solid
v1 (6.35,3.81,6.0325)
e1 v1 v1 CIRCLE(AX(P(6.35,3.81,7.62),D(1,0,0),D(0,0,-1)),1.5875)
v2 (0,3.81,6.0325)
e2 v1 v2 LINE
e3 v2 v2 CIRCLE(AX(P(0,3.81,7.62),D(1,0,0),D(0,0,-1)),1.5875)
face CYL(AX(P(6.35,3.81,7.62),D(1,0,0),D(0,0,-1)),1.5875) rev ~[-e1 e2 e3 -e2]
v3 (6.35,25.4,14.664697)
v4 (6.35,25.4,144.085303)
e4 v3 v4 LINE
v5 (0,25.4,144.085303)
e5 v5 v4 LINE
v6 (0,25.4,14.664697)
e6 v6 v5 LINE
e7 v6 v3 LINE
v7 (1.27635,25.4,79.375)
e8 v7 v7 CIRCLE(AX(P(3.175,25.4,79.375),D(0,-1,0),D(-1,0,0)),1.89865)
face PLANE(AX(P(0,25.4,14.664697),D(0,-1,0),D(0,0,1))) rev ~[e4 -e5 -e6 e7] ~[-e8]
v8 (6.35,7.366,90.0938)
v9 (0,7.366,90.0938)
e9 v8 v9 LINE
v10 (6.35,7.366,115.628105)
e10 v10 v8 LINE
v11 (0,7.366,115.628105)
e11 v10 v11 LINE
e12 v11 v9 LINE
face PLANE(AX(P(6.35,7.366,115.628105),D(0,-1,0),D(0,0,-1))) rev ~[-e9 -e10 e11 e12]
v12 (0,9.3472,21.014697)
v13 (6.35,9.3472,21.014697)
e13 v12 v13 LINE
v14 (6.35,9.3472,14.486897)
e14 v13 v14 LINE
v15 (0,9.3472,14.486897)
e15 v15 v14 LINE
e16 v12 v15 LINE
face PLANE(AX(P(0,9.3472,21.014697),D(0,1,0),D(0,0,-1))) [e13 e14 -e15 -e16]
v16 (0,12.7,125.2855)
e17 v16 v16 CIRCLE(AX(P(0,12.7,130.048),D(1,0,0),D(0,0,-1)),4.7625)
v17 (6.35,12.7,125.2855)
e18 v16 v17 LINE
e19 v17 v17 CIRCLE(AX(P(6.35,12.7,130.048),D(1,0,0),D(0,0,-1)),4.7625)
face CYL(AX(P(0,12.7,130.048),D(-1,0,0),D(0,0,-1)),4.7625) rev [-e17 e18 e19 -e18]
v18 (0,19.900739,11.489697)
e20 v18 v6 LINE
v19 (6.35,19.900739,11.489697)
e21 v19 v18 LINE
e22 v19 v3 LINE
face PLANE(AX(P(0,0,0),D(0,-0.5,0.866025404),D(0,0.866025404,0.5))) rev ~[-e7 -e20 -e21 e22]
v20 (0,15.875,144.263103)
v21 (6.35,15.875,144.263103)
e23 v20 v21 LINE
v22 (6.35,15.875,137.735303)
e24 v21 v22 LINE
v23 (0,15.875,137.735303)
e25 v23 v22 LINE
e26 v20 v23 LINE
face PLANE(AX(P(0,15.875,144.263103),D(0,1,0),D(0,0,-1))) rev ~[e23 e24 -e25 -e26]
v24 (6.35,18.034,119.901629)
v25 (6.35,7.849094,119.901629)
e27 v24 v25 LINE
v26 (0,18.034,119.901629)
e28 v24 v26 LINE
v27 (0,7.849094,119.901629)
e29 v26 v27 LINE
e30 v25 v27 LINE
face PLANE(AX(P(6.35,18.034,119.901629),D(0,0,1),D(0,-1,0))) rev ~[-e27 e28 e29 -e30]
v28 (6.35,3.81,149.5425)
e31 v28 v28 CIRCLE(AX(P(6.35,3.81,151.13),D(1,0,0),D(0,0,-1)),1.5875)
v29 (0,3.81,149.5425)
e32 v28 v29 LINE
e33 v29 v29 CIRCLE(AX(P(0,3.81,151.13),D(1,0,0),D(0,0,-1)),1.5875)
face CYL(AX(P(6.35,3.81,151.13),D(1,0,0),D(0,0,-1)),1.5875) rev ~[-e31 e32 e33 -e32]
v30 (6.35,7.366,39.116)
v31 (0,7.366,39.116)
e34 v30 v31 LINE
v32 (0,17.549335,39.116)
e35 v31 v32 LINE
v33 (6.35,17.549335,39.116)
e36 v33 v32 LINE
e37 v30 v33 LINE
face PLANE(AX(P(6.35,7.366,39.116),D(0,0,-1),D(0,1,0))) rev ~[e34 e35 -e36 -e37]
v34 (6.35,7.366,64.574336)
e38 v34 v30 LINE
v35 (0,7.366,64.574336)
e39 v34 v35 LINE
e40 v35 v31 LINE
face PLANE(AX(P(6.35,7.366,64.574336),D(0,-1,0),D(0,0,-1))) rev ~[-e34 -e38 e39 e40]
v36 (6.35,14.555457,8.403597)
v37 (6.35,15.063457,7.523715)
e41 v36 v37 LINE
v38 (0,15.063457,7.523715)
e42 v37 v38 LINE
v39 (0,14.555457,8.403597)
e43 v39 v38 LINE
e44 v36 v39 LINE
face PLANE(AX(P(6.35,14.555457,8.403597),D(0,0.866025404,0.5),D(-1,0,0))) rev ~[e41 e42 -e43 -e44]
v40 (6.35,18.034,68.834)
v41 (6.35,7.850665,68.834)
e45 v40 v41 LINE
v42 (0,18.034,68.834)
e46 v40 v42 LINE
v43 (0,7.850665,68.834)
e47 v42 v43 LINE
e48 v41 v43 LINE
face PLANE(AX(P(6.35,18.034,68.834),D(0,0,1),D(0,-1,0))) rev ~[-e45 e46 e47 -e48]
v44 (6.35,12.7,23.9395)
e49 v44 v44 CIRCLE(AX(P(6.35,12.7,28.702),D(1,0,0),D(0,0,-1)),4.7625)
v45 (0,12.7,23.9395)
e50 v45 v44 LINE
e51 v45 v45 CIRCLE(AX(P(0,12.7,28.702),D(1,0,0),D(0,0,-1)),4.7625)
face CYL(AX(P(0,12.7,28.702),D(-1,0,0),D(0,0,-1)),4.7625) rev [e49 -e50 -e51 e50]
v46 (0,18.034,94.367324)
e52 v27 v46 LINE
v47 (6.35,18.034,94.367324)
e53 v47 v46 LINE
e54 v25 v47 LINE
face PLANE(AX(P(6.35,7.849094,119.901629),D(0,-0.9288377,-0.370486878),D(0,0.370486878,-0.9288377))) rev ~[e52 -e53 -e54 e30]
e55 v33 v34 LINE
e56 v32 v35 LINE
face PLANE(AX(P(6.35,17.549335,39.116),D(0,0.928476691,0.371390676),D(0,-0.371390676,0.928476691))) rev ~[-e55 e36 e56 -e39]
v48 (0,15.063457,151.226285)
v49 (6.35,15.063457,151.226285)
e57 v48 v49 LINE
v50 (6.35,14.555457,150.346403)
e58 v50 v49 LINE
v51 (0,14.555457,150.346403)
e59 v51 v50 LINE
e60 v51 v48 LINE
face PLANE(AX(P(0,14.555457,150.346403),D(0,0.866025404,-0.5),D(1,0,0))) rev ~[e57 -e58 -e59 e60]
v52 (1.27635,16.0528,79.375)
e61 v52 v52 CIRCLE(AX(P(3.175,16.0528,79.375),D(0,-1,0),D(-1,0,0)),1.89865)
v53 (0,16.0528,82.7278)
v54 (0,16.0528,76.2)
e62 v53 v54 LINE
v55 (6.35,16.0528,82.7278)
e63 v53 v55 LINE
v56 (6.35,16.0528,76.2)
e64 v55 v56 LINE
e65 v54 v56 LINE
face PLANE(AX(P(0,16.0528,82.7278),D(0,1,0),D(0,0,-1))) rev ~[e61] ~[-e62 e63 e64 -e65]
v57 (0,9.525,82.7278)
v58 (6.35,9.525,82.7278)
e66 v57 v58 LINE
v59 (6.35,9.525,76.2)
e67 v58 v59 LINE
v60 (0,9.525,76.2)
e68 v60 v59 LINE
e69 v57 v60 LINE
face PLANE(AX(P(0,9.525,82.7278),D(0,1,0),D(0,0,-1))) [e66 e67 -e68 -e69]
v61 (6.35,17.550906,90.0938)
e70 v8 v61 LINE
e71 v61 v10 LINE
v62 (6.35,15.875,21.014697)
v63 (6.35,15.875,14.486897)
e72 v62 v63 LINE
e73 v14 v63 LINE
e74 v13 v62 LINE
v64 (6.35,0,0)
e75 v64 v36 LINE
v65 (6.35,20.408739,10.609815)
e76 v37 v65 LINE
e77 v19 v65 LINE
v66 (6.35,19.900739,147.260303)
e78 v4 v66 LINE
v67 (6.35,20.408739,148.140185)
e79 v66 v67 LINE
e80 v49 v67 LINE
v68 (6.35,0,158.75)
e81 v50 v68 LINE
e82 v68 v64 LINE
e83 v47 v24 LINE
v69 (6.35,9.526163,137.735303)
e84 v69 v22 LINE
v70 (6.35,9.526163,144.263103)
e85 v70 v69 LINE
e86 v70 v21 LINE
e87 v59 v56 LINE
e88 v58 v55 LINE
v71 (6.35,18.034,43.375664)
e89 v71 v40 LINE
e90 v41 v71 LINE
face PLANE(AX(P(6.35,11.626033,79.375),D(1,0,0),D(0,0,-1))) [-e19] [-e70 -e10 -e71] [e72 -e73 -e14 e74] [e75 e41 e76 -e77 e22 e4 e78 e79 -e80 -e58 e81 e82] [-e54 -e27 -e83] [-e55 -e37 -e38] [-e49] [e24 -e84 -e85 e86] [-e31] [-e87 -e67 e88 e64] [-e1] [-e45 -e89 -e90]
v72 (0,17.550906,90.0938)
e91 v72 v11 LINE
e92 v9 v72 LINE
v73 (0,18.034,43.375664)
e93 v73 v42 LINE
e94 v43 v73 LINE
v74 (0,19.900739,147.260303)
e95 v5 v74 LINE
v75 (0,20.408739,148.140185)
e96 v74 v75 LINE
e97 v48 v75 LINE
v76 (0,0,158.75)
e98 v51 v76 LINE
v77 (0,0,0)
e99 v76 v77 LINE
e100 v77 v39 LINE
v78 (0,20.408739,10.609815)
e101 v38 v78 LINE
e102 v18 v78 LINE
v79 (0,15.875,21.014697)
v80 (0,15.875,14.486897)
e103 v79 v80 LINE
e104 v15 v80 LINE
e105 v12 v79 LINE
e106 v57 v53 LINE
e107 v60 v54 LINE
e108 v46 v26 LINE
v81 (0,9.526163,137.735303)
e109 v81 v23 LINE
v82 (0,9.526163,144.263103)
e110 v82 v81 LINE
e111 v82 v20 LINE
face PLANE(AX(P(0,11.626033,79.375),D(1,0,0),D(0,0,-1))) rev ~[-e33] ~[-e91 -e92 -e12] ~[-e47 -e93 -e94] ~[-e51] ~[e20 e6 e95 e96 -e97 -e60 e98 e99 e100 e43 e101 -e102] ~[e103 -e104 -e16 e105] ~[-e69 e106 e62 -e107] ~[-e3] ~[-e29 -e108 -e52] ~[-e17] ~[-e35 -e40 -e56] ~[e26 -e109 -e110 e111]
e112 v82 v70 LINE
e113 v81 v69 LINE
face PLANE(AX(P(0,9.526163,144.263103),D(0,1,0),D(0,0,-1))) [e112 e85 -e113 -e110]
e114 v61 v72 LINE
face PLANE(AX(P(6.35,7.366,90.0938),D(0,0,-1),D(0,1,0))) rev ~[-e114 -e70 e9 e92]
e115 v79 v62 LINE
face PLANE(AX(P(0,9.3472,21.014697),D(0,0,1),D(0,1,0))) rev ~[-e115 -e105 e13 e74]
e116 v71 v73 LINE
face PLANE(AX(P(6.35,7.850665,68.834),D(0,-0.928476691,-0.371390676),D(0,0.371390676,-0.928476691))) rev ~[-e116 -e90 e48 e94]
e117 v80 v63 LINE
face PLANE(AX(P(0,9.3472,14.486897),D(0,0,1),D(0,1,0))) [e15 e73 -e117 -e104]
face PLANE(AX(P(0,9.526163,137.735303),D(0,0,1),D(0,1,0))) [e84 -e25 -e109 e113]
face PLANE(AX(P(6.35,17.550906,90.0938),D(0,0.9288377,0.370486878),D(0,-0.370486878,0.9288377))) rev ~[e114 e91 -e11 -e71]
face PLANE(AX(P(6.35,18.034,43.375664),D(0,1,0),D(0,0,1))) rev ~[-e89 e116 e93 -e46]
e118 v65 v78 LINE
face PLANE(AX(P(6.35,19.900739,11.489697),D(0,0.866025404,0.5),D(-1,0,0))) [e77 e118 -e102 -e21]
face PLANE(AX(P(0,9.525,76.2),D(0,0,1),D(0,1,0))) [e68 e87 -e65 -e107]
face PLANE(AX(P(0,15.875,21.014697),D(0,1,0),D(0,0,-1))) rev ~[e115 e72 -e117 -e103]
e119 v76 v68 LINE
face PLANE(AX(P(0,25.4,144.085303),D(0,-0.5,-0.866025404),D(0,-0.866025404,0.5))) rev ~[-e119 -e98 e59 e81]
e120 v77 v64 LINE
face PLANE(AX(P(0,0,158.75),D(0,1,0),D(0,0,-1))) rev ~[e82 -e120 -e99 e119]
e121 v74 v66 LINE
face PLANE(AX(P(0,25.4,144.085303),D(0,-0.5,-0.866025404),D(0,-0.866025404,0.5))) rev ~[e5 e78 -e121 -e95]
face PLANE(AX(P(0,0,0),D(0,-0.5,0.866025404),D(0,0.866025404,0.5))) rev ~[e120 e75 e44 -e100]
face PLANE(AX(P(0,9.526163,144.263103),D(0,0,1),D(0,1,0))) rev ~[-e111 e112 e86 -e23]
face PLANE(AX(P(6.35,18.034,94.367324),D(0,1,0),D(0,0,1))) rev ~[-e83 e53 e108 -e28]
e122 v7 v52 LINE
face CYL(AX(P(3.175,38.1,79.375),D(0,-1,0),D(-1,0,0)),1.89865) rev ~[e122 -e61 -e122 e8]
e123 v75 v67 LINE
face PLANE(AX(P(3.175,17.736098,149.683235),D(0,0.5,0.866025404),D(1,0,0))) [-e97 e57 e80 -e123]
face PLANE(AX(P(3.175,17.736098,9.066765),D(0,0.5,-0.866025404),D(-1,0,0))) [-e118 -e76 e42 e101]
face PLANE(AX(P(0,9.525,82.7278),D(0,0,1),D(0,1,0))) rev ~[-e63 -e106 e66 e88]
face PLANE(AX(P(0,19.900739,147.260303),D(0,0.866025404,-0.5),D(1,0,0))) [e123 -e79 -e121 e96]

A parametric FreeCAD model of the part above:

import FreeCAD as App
import Part
import Sketcher
Q = App.Units.Quantity

doc = App.newDocument("Part")
params = doc.addObject("Spreadsheet::Sheet", "Params")
for row, (alias, value) in enumerate([
    ("sketch1_diameter", "0.375 in"),
    ("sketch1_height", "6.25 in"),
    ("sketch1_width", "0.257 in"),
    ("pad1_length", "0.25 in"),
    ("hole_diameter", "0.1495 in"),
    ("hole_depth", "0.5 in"),
    ("sketch3_width", "0.25 in"),
    ("sketch3_height", "0.243 in"),
    ("pad2_length", "0.04 in"),
    ("sketch4_width", "0.25 in"),
    ("sketch4_height", "0.243 in"),
    ("pad3_length", "0.04 in"),
    ("sketch5_diameter", "0.125 in"),
], start=1):
    params.set(f"A{row}", alias)
    params.set(f"B{row}", "=" + value)
    params.setAlias(f"B{row}", alias)

body = doc.addObject("PartDesign::Body", "Body")

sketch1 = body.newObject("Sketcher::SketchObject", "Sketch")
sketch1.AttachmentSupport = (doc.getObject("YZ_Plane"), [""])
sketch1.MapMode = "FlatFace"
sketch1.addGeometry([
    Part.LineSegment(App.Vector(0, 0, 0), App.Vector(25.4, 14.7, 0)),
    Part.LineSegment(App.Vector(25.4, 14.7, 0), App.Vector(25.4, 144.1, 0)),
    Part.LineSegment(App.Vector(25.4, 144.1, 0), App.Vector(0, 158.8, 0)),
    Part.LineSegment(App.Vector(0, 158.8, 0), App.Vector(0, 0, 0)),
    Part.LineSegment(App.Vector(9.3, 14.5, 0), App.Vector(9.3, 21, 0)),
    Part.LineSegment(App.Vector(9.3, 21, 0), App.Vector(15.9, 21, 0)),
    Part.LineSegment(App.Vector(15.9, 21, 0), App.Vector(15.9, 14.5, 0)),
    Part.LineSegment(App.Vector(15.9, 14.5, 0), App.Vector(9.3, 14.5, 0)),
    Part.LineSegment(App.Vector(9.5, 137.7, 0), App.Vector(9.5, 144.3, 0)),
    Part.LineSegment(App.Vector(9.5, 144.3, 0), App.Vector(15.9, 144.3, 0)),
    Part.LineSegment(App.Vector(15.9, 144.3, 0), App.Vector(15.9, 137.7, 0)),
    Part.LineSegment(App.Vector(15.9, 137.7, 0), App.Vector(9.5, 137.7, 0)),
    Part.Circle(App.Vector(12.7, 130, 0), App.Vector(0, 0, 1), 4.8),
    Part.LineSegment(App.Vector(9.5, 76.2, 0), App.Vector(9.5, 82.7, 0)),
    Part.LineSegment(App.Vector(9.5, 82.7, 0), App.Vector(16.1, 82.7, 0)),
    Part.LineSegment(App.Vector(16.1, 82.7, 0), App.Vector(16.1, 76.2, 0)),
    Part.LineSegment(App.Vector(16.1, 76.2, 0), App.Vector(9.5, 76.2, 0)),
    Part.Circle(App.Vector(12.7, 28.7, 0), App.Vector(0, 0, 1), 4.8),
], False)
sketch1.addConstraint([
    Sketcher.Constraint("Coincident", 0, 2, 1, 1),
    Sketcher.Constraint("Coincident", 1, 2, 2, 1),
    Sketcher.Constraint("Coincident", 2, 2, 3, 1),
    Sketcher.Constraint("Coincident", 3, 2, 0, 1),
    Sketcher.Constraint("Coincident", 4, 2, 5, 1),
    Sketcher.Constraint("Coincident", 5, 2, 6, 1),
    Sketcher.Constraint("Coincident", 6, 2, 7, 1),
    Sketcher.Constraint("Coincident", 7, 2, 4, 1),
    Sketcher.Constraint("Coincident", 8, 2, 9, 1),
    Sketcher.Constraint("Coincident", 9, 2, 10, 1),
    Sketcher.Constraint("Coincident", 10, 2, 11, 1),
    Sketcher.Constraint("Coincident", 11, 2, 8, 1),
    Sketcher.Constraint("Coincident", 13, 2, 14, 1),
    Sketcher.Constraint("Coincident", 14, 2, 15, 1),
    Sketcher.Constraint("Coincident", 15, 2, 16, 1),
    Sketcher.Constraint("Coincident", 16, 2, 13, 1),
    Sketcher.Constraint("Vertical", 1),
    Sketcher.Constraint("Vertical", 3),
    Sketcher.Constraint("Vertical", 4),
    Sketcher.Constraint("Horizontal", 5),
    Sketcher.Constraint("Vertical", 6),
    Sketcher.Constraint("Horizontal", 7),
    Sketcher.Constraint("Vertical", 8),
    Sketcher.Constraint("Horizontal", 9),
    Sketcher.Constraint("Vertical", 10),
    Sketcher.Constraint("Horizontal", 11),
    Sketcher.Constraint("Vertical", 13),
    Sketcher.Constraint("Horizontal", 14),
    Sketcher.Constraint("Vertical", 15),
    Sketcher.Constraint("Horizontal", 16),
    Sketcher.Constraint("Coincident", 3, 2, -1, 1),
    Sketcher.Constraint("Equal", 12, 17),
    Sketcher.Constraint("Vertical", 12, 3, 17, 3),
    Sketcher.Constraint("Vertical", 6, 2, 9, 2),
    Sketcher.Constraint("Equal", 7, 14),
    Sketcher.Constraint("Equal", 16, 4),
    Sketcher.Constraint("Equal", 6, 8),
    Sketcher.Constraint("Equal", 10, 13),
    Sketcher.Constraint("Equal", 0, 2),
    Sketcher.Constraint("Diameter", 12, Q("0.375 in")),
    Sketcher.Constraint("DistanceX", -1, 1, 0, 2, Q("1 in")),
    Sketcher.Constraint("DistanceY", -1, 1, 15, 2, Q("3 in")),
    Sketcher.Constraint("Angle", 0, Q("30 deg")),
    Sketcher.Constraint("DistanceY", 3, 2, 3, 1, Q("6.25 in")),
    Sketcher.Constraint("DistanceX", -1, 1, 12, 3, Q("0.5 in")),
    Sketcher.Constraint("DistanceX", 5, 1, 5, 2, Q("0.257 in")),
    Sketcher.Constraint("DistanceY", -1, 1, 12, 3, Q("5.12 in")),
    Sketcher.Constraint("DistanceY", -1, 1, 17, 3, Q("1.13 in")),
    Sketcher.Constraint("DistanceY", 0, 2, 4, 2, Q("0.25 in")),
    Sketcher.Constraint("DistanceY", 10, 2, 1, 2, Q("0.25 in")),
    Sketcher.Constraint("DistanceX", 13, 2, 10, 2, Q("0.25 in")),
    Sketcher.Constraint("DistanceX", -1, 1, 4, 2, Q("0.368 in")),
    Sketcher.Constraint("DistanceX", 9, 1, 9, 2, Q("6.348837 mm")),
])
sketch1.setExpression("Constraints[39]", "Params.sketch1_diameter")
sketch1.setExpression("Constraints[43]", "Params.sketch1_height")
sketch1.setExpression("Constraints[45]", "Params.sketch1_width")
pad1 = body.newObject("PartDesign::Pad", "Pad")
pad1.Profile = sketch1
pad1.setExpression("Length", "Params.pad1_length")

sketch2 = body.newObject("Sketcher::SketchObject", "Sketch001")
sketch2.AttachmentSupport = (doc.getObject("XZ_Plane"), [""])
sketch2.MapMode = "FlatFace"
sketch2.AttachmentOffset = App.Placement(App.Vector(0, 0, -1 * 25.4), App.Rotation())
sketch2.addGeometry(Part.Circle(App.Vector(3.2, 79.4, 0), App.Vector(0, 0, 1), 1.9), False)
sketch2.addConstraint([
    Sketcher.Constraint("Diameter", 0, Q("0.1495 in")),
    Sketcher.Constraint("DistanceX", -1, 1, 0, 3, Q("0.125 in")),
    Sketcher.Constraint("DistanceY", -1, 1, 0, 3, Q("3.125 in")),
])
doc.recompute()
hole = body.newObject("PartDesign::Hole", "Hole")
hole.Profile = sketch2
hole.ThreadType = "None"
hole.setExpression("Diameter", "Params.hole_diameter")
hole.DepthType = "Dimension"
hole.setExpression("Depth", "Params.hole_depth")
hole.DrillPoint = "Angled"
hole.DrillPointAngle = 118
hole.Reversed = True

sketch3 = body.newObject("Sketcher::SketchObject", "Sketch002")
sketch3.Placement = App.Placement(App.Vector(0, 0, 0), App.Rotation(App.Vector(-1, 0, 0), App.Vector(0, 0.866025404, 0.5), App.Vector(0, 0.5, -0.866025404), "ZXY"))
sketch3.addGeometry([
    Part.LineSegment(App.Vector(-6, 23, 0), App.Vector(-6, 17, 0)),
    Part.LineSegment(App.Vector(-6, 17, 0), App.Vector(0, 17, 0)),
    Part.LineSegment(App.Vector(0, 17, 0), App.Vector(0, 23, 0)),
    Part.LineSegment(App.Vector(0, 23, 0), App.Vector(-6, 23, 0)),
], False)
sketch3.addConstraint([
    Sketcher.Constraint("Coincident", 0, 2, 1, 1),
    Sketcher.Constraint("Coincident", 1, 2, 2, 1),
    Sketcher.Constraint("Coincident", 2, 2, 3, 1),
    Sketcher.Constraint("Coincident", 3, 2, 0, 1),
    Sketcher.Constraint("Vertical", 0),
    Sketcher.Constraint("Horizontal", 1),
    Sketcher.Constraint("Vertical", 2),
    Sketcher.Constraint("Horizontal", 3),
    Sketcher.Constraint("PointOnObject", 1, 2, -2),
    Sketcher.Constraint("DistanceX", 1, 1, 1, 2, Q("0.25 in")),
    Sketcher.Constraint("DistanceY", 0, 2, 0, 1, Q("0.243 in")),
    Sketcher.Constraint("DistanceY", -1, 1, 0, 2, Q("16.807194 mm")),
])
sketch3.setExpression("Constraints[9]", "Params.sketch3_width")
sketch3.setExpression("Constraints[10]", "Params.sketch3_height")
pad2 = body.newObject("PartDesign::Pad", "Pad001")
pad2.Profile = sketch3
pad2.setExpression("Length", "Params.pad2_length")

sketch4 = body.newObject("Sketcher::SketchObject", "Sketch003")
sketch4.Placement = App.Placement(App.Vector(0, 68.740766, 119.0625), App.Rotation(App.Vector(1, 0, 0), App.Vector(0, 0.866025404, -0.5), App.Vector(0, 0.5, 0.866025404), "ZXY"))
sketch4.addGeometry([
    Part.LineSegment(App.Vector(0, -56, 0), App.Vector(0, -63, 0)),
    Part.LineSegment(App.Vector(0, -63, 0), App.Vector(6, -63, 0)),
    Part.LineSegment(App.Vector(6, -63, 0), App.Vector(6, -56, 0)),
    Part.LineSegment(App.Vector(6, -56, 0), App.Vector(0, -56, 0)),
], False)
sketch4.addConstraint([
    Sketcher.Constraint("Coincident", 0, 2, 1, 1),
    Sketcher.Constraint("Coincident", 1, 2, 2, 1),
    Sketcher.Constraint("Coincident", 2, 2, 3, 1),
    Sketcher.Constraint("Coincident", 3, 2, 0, 1),
    Sketcher.Constraint("Vertical", 0),
    Sketcher.Constraint("Horizontal", 1),
    Sketcher.Constraint("Vertical", 2),
    Sketcher.Constraint("Horizontal", 3),
    Sketcher.Constraint("PointOnObject", 0, 2, -2),
    Sketcher.Constraint("DistanceX", 1, 1, 1, 2, Q("0.25 in")),
    Sketcher.Constraint("DistanceY", 0, 2, 0, 1, Q("0.243 in")),
    Sketcher.Constraint("DistanceY", 0, 2, -1, 1, Q("62.567806 mm")),
])
sketch4.setExpression("Constraints[9]", "Params.sketch4_width")
sketch4.setExpression("Constraints[10]", "Params.sketch4_height")
pad3 = body.newObject("PartDesign::Pad", "Pad002")
pad3.Profile = sketch4
pad3.setExpression("Length", "Params.pad3_length")

sketch5 = body.newObject("Sketcher::SketchObject", "Sketch004")
sketch5.AttachmentSupport = (doc.getObject("YZ_Plane"), [""])
sketch5.MapMode = "FlatFace"
sketch5.AttachmentOffset = App.Placement(App.Vector(0, 0, 0.25 * 25.4), App.Rotation())
sketch5.addGeometry([
    Part.Circle(App.Vector(3.8, 151.1, 0), App.Vector(0, 0, 1), 1.6),
    Part.Circle(App.Vector(3.8, 7.6, 0), App.Vector(0, 0, 1), 1.6),
], False)
sketch5.addConstraint([
    Sketcher.Constraint("Equal", 0, 1),
    Sketcher.Constraint("Vertical", 0, 3, 1, 3),
    Sketcher.Constraint("Diameter", 0, Q("0.125 in")),
    Sketcher.Constraint("DistanceY", -1, 1, 1, 3, Q("0.3 in")),
    Sketcher.Constraint("DistanceX", -1, 1, 0, 3, Q("0.15 in")),
    Sketcher.Constraint("DistanceY", -1, 1, 0, 3, Q("5.95 in")),
])
sketch5.setExpression("Constraints[2]", "Params.sketch5_diameter")
pocket1 = body.newObject("PartDesign::Pocket", "Pocket")
pocket1.Profile = sketch5
pocket1.Type = "ThroughAll"

sketch6 = body.newObject("Sketcher::SketchObject", "Sketch005")
sketch6.AttachmentSupport = (doc.getObject("YZ_Plane"), [""])
sketch6.MapMode = "FlatFace"
sketch6.AttachmentOffset = App.Placement(App.Vector(0, 0, 0.25 * 25.4), App.Rotation())
sketch6.addGeometry([
    Part.LineSegment(App.Vector(7, 90, 0), App.Vector(18, 90, 0)),
    Part.LineSegment(App.Vector(18, 90, 0), App.Vector(7, 116, 0)),
    Part.LineSegment(App.Vector(7, 116, 0), App.Vector(7, 90, 0)),
    Part.LineSegment(App.Vector(8, 120, 0), App.Vector(18, 94, 0)),
    Part.LineSegment(App.Vector(18, 94, 0), App.Vector(18, 120, 0)),
    Part.LineSegment(App.Vector(18, 120, 0), App.Vector(8, 120, 0)),
    Part.LineSegment(App.Vector(8, 69, 0), App.Vector(18, 43, 0)),
    Part.LineSegment(App.Vector(18, 43, 0), App.Vector(18, 69, 0)),
    Part.LineSegment(App.Vector(18, 69, 0), App.Vector(8, 69, 0)),
    Part.LineSegment(App.Vector(7, 39, 0), App.Vector(18, 39, 0)),
    Part.LineSegment(App.Vector(18, 39, 0), App.Vector(7, 65, 0)),
    Part.LineSegment(App.Vector(7, 65, 0), App.Vector(7, 39, 0)),
], False)
sketch6.addConstraint([
    Sketcher.Constraint("Coincident", 0, 2, 1, 1),
    Sketcher.Constraint("Coincident", 1, 2, 2, 1),
    Sketcher.Constraint("Coincident", 2, 2, 0, 1),
    Sketcher.Constraint("Coincident", 3, 2, 4, 1),
    Sketcher.Constraint("Coincident", 4, 2, 5, 1),
    Sketcher.Constraint("Coincident", 5, 2, 3, 1),
    Sketcher.Constraint("Coincident", 6, 2, 7, 1),
    Sketcher.Constraint("Coincident", 7, 2, 8, 1),
    Sketcher.Constraint("Coincident", 8, 2, 6, 1),
    Sketcher.Constraint("Coincident", 9, 2, 10, 1),
    Sketcher.Constraint("Coincident", 10, 2, 11, 1),
    Sketcher.Constraint("Coincident", 11, 2, 9, 1),
    Sketcher.Constraint("Horizontal", 0),
    Sketcher.Constraint("Vertical", 2),
    Sketcher.Constraint("Vertical", 4),
    Sketcher.Constraint("Horizontal", 5),
    Sketcher.Constraint("Vertical", 7),
    Sketcher.Constraint("Horizontal", 8),
    Sketcher.Constraint("Horizontal", 9),
    Sketcher.Constraint("Vertical", 11),
    Sketcher.Constraint("Parallel", 1, 3),
    Sketcher.Constraint("Parallel", 6, 10),
    Sketcher.Constraint("Vertical", 4, 2, 6, 2),
    Sketcher.Constraint("Vertical", 2, 2, 10, 2),
    Sketcher.Constraint("Equal", 0, 5),
    Sketcher.Constraint("Equal", 8, 9),
    Sketcher.Constraint("DistanceX", -1, 1, 1, 2, Q("0.29 in")),
    Sketcher.Constraint("DistanceX", -1, 1, 3, 2, Q("0.71 in")),
    Sketcher.Constraint("DistanceY", -1, 1, 7, 2, Q("2.71 in")),
    Sketcher.Constraint("DistanceY", -1, 1, 9, 2, Q("1.54 in")),
    Sketcher.Constraint("DistanceY", -1, 1, 0, 2, Q("3.547 in")),
    Sketcher.Constraint("Distance", 1, Q("27.490599 mm")),
    Sketcher.Constraint("DistanceX", 0, 1, 0, 2, Q("10.184906 mm")),
    Sketcher.Constraint("DistanceX", 8, 2, 8, 1, Q("10.183335 mm")),
    Sketcher.Constraint("DistanceY", 7, 1, 7, 2, Q("25.458336 mm")),
    Sketcher.Constraint("DistanceY", -1, 1, 4, 2, Q("119.901629 mm")),
])
pocket2 = body.newObject("PartDesign::Pocket", "Pocket001")
pocket2.Profile = sketch6
pocket2.Type = "ThroughAll"

doc.recompute()
